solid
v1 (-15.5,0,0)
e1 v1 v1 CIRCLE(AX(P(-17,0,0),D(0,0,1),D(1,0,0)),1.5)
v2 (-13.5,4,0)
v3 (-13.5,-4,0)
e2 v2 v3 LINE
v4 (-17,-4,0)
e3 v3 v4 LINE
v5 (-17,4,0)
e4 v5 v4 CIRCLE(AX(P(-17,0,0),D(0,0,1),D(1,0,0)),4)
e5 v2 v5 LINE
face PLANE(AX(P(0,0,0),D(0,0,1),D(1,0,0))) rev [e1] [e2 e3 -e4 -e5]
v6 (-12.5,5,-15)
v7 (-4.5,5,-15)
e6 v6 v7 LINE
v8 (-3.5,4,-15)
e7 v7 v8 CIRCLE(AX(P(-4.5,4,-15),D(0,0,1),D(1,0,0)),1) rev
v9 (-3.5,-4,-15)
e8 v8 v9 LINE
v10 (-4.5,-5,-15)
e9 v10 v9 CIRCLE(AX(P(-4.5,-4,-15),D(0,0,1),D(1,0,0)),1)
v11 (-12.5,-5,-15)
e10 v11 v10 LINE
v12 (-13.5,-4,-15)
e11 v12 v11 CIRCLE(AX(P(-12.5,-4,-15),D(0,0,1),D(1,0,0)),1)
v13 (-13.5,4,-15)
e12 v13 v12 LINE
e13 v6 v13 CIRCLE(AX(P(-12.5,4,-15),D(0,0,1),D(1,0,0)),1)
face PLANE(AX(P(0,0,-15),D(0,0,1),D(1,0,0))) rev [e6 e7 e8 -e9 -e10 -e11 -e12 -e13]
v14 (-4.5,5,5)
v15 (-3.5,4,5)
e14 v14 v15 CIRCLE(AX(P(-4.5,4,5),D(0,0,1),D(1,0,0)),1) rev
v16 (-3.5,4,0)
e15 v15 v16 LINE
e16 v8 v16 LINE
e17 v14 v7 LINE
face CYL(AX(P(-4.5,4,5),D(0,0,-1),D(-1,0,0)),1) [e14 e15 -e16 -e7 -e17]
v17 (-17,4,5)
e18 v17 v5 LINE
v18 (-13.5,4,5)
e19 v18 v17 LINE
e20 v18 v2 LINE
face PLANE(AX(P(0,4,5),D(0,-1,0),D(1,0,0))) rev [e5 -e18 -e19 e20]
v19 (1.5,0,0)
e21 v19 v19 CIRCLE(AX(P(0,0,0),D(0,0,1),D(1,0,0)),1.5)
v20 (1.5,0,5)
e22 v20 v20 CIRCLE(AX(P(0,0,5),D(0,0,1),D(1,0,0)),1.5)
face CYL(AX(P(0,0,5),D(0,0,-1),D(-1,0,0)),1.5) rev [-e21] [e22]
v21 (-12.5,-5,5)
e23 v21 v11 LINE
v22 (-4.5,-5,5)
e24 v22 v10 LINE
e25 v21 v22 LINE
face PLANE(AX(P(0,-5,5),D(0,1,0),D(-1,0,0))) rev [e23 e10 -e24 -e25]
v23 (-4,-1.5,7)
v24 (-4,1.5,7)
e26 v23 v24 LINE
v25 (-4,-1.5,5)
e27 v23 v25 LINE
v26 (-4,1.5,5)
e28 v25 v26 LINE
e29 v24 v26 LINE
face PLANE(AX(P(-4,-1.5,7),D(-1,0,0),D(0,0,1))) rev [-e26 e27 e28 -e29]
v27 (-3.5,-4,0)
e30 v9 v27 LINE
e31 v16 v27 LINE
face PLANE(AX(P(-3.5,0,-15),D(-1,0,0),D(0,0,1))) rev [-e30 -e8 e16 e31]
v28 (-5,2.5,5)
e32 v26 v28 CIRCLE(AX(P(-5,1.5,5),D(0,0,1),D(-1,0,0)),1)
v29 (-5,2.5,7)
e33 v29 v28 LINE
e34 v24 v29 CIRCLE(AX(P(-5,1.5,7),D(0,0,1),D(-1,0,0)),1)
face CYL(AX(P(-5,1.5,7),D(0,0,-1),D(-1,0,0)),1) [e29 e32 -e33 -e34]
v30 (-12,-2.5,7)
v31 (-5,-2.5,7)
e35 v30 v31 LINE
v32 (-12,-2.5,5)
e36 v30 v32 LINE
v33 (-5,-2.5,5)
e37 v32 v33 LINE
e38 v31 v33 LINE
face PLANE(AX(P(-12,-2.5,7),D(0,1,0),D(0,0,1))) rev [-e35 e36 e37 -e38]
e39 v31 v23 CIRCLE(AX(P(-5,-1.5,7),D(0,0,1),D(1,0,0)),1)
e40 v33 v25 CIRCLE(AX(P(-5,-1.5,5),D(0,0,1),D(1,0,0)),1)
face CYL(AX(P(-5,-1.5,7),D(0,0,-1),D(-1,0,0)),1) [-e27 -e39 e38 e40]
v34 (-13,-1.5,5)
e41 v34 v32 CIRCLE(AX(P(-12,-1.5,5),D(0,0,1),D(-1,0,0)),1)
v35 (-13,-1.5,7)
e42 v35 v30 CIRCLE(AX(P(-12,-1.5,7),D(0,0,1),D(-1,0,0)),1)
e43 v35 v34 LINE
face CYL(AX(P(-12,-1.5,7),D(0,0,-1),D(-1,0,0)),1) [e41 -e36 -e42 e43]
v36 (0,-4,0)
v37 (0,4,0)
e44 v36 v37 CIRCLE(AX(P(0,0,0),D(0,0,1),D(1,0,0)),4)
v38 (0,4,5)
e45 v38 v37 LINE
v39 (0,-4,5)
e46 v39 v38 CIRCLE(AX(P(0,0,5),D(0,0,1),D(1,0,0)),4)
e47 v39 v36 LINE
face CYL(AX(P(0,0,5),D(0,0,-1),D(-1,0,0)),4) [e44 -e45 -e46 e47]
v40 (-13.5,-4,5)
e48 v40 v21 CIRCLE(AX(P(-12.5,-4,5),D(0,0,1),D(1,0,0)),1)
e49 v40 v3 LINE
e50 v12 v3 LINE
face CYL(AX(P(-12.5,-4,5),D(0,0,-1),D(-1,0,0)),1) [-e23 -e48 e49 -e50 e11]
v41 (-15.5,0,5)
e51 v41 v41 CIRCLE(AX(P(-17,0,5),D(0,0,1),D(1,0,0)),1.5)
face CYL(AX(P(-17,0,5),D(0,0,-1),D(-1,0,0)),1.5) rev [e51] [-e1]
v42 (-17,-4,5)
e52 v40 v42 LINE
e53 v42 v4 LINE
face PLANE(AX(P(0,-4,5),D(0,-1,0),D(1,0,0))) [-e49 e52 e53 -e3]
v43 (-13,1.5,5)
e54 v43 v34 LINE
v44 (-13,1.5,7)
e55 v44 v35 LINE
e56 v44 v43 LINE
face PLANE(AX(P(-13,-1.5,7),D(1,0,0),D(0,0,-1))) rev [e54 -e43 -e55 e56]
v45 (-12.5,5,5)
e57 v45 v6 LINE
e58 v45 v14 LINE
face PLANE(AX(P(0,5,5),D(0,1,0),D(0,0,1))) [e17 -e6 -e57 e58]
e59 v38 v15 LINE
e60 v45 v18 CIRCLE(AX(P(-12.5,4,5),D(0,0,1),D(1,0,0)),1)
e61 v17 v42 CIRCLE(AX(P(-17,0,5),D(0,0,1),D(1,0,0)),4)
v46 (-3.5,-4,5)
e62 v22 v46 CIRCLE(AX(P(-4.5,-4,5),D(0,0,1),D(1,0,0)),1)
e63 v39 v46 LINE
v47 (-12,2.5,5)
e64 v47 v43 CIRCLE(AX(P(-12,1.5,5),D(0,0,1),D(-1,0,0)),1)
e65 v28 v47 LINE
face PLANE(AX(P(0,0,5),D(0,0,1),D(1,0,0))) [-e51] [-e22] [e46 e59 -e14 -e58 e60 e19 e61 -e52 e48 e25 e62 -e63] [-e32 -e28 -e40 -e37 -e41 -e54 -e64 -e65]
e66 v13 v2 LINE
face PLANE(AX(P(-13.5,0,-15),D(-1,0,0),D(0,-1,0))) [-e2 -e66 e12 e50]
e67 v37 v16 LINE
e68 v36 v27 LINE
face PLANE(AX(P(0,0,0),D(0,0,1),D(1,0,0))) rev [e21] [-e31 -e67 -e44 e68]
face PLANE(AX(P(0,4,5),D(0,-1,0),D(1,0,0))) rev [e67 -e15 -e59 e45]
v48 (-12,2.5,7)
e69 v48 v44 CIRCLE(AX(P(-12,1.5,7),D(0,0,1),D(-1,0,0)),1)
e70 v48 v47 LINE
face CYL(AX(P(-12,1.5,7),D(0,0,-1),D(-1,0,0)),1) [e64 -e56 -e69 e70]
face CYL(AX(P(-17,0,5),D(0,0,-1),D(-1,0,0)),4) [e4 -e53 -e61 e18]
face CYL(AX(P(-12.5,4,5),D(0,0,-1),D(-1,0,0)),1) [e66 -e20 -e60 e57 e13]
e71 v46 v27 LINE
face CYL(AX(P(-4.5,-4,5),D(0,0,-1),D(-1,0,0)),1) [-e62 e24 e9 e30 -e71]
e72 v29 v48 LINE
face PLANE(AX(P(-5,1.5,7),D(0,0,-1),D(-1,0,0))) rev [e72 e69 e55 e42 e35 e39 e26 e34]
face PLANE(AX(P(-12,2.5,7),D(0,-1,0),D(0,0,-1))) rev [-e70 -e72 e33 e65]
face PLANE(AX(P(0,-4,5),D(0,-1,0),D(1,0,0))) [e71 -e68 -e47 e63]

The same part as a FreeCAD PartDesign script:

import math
import FreeCAD as App
import Part
import Sketcher
from FreeCAD import Vector

doc = App.newDocument("Part")
body = doc.addObject("PartDesign::Body", "Body")

sketch1 = body.newObject("Sketcher::SketchObject", "Sketch")
sketch1.AttachmentSupport = (doc.getObject("XY_Plane"), [""])
sketch1.MapMode = "FlatFace"
sketch1.addGeometry(Part.ArcOfCircle(Part.Circle(Vector(0, 0, 0), Vector(0, 0, 1), 4), math.radians(-90), math.radians(90)), False)
sketch1.addGeometry(Part.LineSegment(Vector(0, 4, 0), Vector(-3.5, 4, 0)), False)
sketch1.addGeometry(Part.ArcOfCircle(Part.Circle(Vector(-4.5, 4, 0), Vector(0, 0, 1), 1), math.radians(0), math.radians(90)), False)
sketch1.addGeometry(Part.LineSegment(Vector(-4.5, 5, 0), Vector(-12.5, 5, 0)), False)
sketch1.addGeometry(Part.ArcOfCircle(Part.Circle(Vector(-12.5, 4, 0), Vector(0, 0, 1), 1), math.radians(90), math.radians(180)), False)
sketch1.addGeometry(Part.LineSegment(Vector(-13.5, 4, 0), Vector(-17, 4, 0)), False)
sketch1.addGeometry(Part.ArcOfCircle(Part.Circle(Vector(-17, 0, 0), Vector(0, 0, 1), 4), math.radians(90), math.radians(270)), False)
sketch1.addGeometry(Part.LineSegment(Vector(-17, -4, 0), Vector(-13.5, -4, 0)), False)
sketch1.addGeometry(Part.ArcOfCircle(Part.Circle(Vector(-12.5, -4, 0), Vector(0, 0, 1), 1), math.radians(-180), math.radians(-90)), False)
sketch1.addGeometry(Part.LineSegment(Vector(-12.5, -5, 0), Vector(-4.5, -5, 0)), False)
sketch1.addGeometry(Part.ArcOfCircle(Part.Circle(Vector(-4.5, -4, 0), Vector(0, 0, 1), 1), math.radians(-90), math.radians(0)), False)
sketch1.addGeometry(Part.LineSegment(Vector(-3.5, -4, 0), Vector(0, -4, 0)), False)
sketch1.addGeometry(Part.Circle(Vector(0, 0, 0), Vector(0, 0, 1), 1.5), False)
sketch1.addGeometry(Part.Circle(Vector(-17, 0, 0), Vector(0, 0, 1), 1.5), False)
sketch1.addConstraint(Sketcher.Constraint("Tangent", 0, 2, 1, 1))
sketch1.addConstraint(Sketcher.Constraint("Coincident", 1, 2, 2, 1))
sketch1.addConstraint(Sketcher.Constraint("Tangent", 2, 2, 3, 1))
sketch1.addConstraint(Sketcher.Constraint("Tangent", 3, 2, 4, 1))
sketch1.addConstraint(Sketcher.Constraint("Coincident", 4, 2, 5, 1))
sketch1.addConstraint(Sketcher.Constraint("Tangent", 5, 2, 6, 1))
sketch1.addConstraint(Sketcher.Constraint("Tangent", 6, 2, 7, 1))
sketch1.addConstraint(Sketcher.Constraint("Coincident", 7, 2, 8, 1))
sketch1.addConstraint(Sketcher.Constraint("Tangent", 8, 2, 9, 1))
sketch1.addConstraint(Sketcher.Constraint("Tangent", 9, 2, 10, 1))
sketch1.addConstraint(Sketcher.Constraint("Coincident", 10, 2, 11, 1))
sketch1.addConstraint(Sketcher.Constraint("Tangent", 11, 2, 0, 1))
sketch1.addConstraint(Sketcher.Constraint("Horizontal", 1))
sketch1.addConstraint(Sketcher.Constraint("Horizontal", 3))
sketch1.addConstraint(Sketcher.Constraint("Horizontal", 5))
sketch1.addConstraint(Sketcher.Constraint("Horizontal", 7))
sketch1.addConstraint(Sketcher.Constraint("Horizontal", 9))
sketch1.addConstraint(Sketcher.Constraint("Horizontal", 11))
sketch1.addConstraint(Sketcher.Constraint("Coincident", 0, 3, -1, 1))
sketch1.addConstraint(Sketcher.Constraint("Coincident", 12, 3, -1, 1))
sketch1.addConstraint(Sketcher.Constraint("Coincident", 13, 3, 6, 3))
sketch1.addConstraint(Sketcher.Constraint("Equal", 2, 4))
sketch1.addConstraint(Sketcher.Constraint("Equal", 0, 6))
sketch1.addConstraint(Sketcher.Constraint("Equal", 4, 8))
sketch1.addConstraint(Sketcher.Constraint("Equal", 8, 10))
sketch1.addConstraint(Sketcher.Constraint("Equal", 12, 13))
sketch1.addConstraint(Sketcher.Constraint("Symmetric", 4, 3, 8, 3, -1))
sketch1.addConstraint(Sketcher.Constraint("PointOnObject", 6, 3, -1))
sketch1.addConstraint(Sketcher.Constraint("Horizontal", 4, 3, 0, 2))
sketch1.addConstraint(Sketcher.Constraint("Vertical", 2, 3, 10, 3))
sketch1.addConstraint(Sketcher.Constraint("Equal", 1, 5))
sketch1.addConstraint(Sketcher.Constraint("Diameter", 12, 3.0))
sketch1.addConstraint(Sketcher.Constraint("Radius", 0, 4.0))
sketch1.addConstraint(Sketcher.Constraint("Radius", 2, 1.0))
sketch1.addConstraint(Sketcher.Constraint("DistanceX", 3, 2, 3, 1, 8.0))
sketch1.addConstraint(Sketcher.Constraint("DistanceX", 1, 2, 1, 1, 3.5))
pad1 = body.newObject("PartDesign::Pad", "Pad")
pad1.Profile = sketch1
pad1.Length = 5

sketch2 = body.newObject("Sketcher::SketchObject", "Sketch001")
sketch2.AttachmentSupport = (doc.getObject("XY_Plane"), [""])
sketch2.MapMode = "FlatFace"
sketch2.AttachmentOffset = App.Placement(Vector(0, 0, 5), App.Rotation())
sketch2.addGeometry(Part.LineSegment(Vector(-12, -2.5, 0), Vector(-5, -2.5, 0)), False)
sketch2.addGeometry(Part.ArcOfCircle(Part.Circle(Vector(-5, -1.5, 0), Vector(0, 0, 1), 1), math.radians(-90), math.radians(0)), False)
sketch2.addGeometry(Part.LineSegment(Vector(-4, -1.5, 0), Vector(-4, 1.5, 0)), False)
sketch2.addGeometry(Part.ArcOfCircle(Part.Circle(Vector(-5, 1.5, 0), Vector(0, 0, 1), 1), math.radians(0), math.radians(90)), False)
sketch2.addGeometry(Part.LineSegment(Vector(-5, 2.5, 0), Vector(-12, 2.5, 0)), False)
sketch2.addGeometry(Part.ArcOfCircle(Part.Circle(Vector(-12, 1.5, 0), Vector(0, 0, 1), 1), math.radians(90), math.radians(180)), False)
sketch2.addGeometry(Part.LineSegment(Vector(-13, 1.5, 0), Vector(-13, -1.5, 0)), False)
sketch2.addGeometry(Part.ArcOfCircle(Part.Circle(Vector(-12, -1.5, 0), Vector(0, 0, 1), 1), math.radians(-180), math.radians(-90)), False)
sketch2.addConstraint(Sketcher.Constraint("Tangent", 0, 2, 1, 1))
sketch2.addConstraint(Sketcher.Constraint("Tangent", 1, 2, 2, 1))
sketch2.addConstraint(Sketcher.Constraint("Tangent", 2, 2, 3, 1))
sketch2.addConstraint(Sketcher.Constraint("Tangent", 3, 2, 4, 1))
sketch2.addConstraint(Sketcher.Constraint("Tangent", 4, 2, 5, 1))
sketch2.addConstraint(Sketcher.Constraint("Tangent", 5, 2, 6, 1))
sketch2.addConstraint(Sketcher.Constraint("Tangent", 6, 2, 7, 1))
sketch2.addConstraint(Sketcher.Constraint("Tangent", 7, 2, 0, 1))
sketch2.addConstraint(Sketcher.Constraint("Horizontal", 0))
sketch2.addConstraint(Sketcher.Constraint("Vertical", 2))
sketch2.addConstraint(Sketcher.Constraint("Horizontal", 4))
sketch2.addConstraint(Sketcher.Constraint("Vertical", 6))
sketch2.addConstraint(Sketcher.Constraint("Equal", 1, 3))
sketch2.addConstraint(Sketcher.Constraint("Equal", 3, 5))
sketch2.addConstraint(Sketcher.Constraint("Equal", 5, 7))
sketch2.addConstraint(Sketcher.Constraint("Radius", 1, 1.0))
sketch2.addConstraint(Sketcher.Constraint("DistanceX", 0, 1, 0, 2, 7.0))
sketch2.addConstraint(Sketcher.Constraint("DistanceY", 2, 1, 2, 2, 3.0))
sketch2.addConstraint(Sketcher.Constraint("DistanceX", 1, 3, -1, 1, 5.0))
sketch2.addConstraint(Sketcher.Constraint("DistanceY", 1, 3, -1, 1, 1.5))
pad2 = body.newObject("PartDesign::Pad", "Pad001")
pad2.Profile = sketch2
pad2.Length = 2

sketch3 = body.newObject("Sketcher::SketchObject", "Sketch002")
sketch3.AttachmentSupport = (doc.getObject("XY_Plane"), [""])
sketch3.MapMode = "FlatFace"
sketch3.AttachmentOffset = App.Placement(Vector(0, 0, -15), App.Rotation())
sketch3.addGeometry(Part.ArcOfCircle(Part.Circle(Vector(-4.5, 4, 0), Vector(0, 0, 1), 1), math.radians(0), math.radians(90)), False)
sketch3.addGeometry(Part.LineSegment(Vector(-4.5, 5, 0), Vector(-12.5, 5, 0)), False)
sketch3.addGeometry(Part.ArcOfCircle(Part.Circle(Vector(-12.5, 4, 0), Vector(0, 0, 1), 1), math.radians(90), math.radians(180)), False)
sketch3.addGeometry(Part.LineSegment(Vector(-13.5, 4, 0), Vector(-13.5, -4, 0)), False)
sketch3.addGeometry(Part.ArcOfCircle(Part.Circle(Vector(-12.5, -4, 0), Vector(0, 0, 1), 1), math.radians(-180), math.radians(-90)), False)
sketch3.addGeometry(Part.LineSegment(Vector(-12.5, -5, 0), Vector(-4.5, -5, 0)), False)
sketch3.addGeometry(Part.ArcOfCircle(Part.Circle(Vector(-4.5, -4, 0), Vector(0, 0, 1), 1), math.radians(-90), math.radians(0)), False)
sketch3.addGeometry(Part.LineSegment(Vector(-3.5, -4, 0), Vector(-3.5, 4, 0)), False)
sketch3.addConstraint(Sketcher.Constraint("Tangent", 0, 2, 1, 1))
sketch3.addConstraint(Sketcher.Constraint("Tangent", 1, 2, 2, 1))
sketch3.addConstraint(Sketcher.Constraint("Tangent", 2, 2, 3, 1))
sketch3.addConstraint(Sketcher.Constraint("Tangent", 3, 2, 4, 1))
sketch3.addConstraint(Sketcher.Constraint("Tangent", 4, 2, 5, 1))
sketch3.addConstraint(Sketcher.Constraint("Tangent", 5, 2, 6, 1))
sketch3.addConstraint(Sketcher.Constraint("Tangent", 6, 2, 7, 1))
sketch3.addConstraint(Sketcher.Constraint("Tangent", 7, 2, 0, 1))
sketch3.addConstraint(Sketcher.Constraint("Horizontal", 1))
sketch3.addConstraint(Sketcher.Constraint("Vertical", 3))
sketch3.addConstraint(Sketcher.Constraint("Horizontal", 5))
sketch3.addConstraint(Sketcher.Constraint("Vertical", 7))
sketch3.addConstraint(Sketcher.Constraint("Equal", 0, 2))
sketch3.addConstraint(Sketcher.Constraint("Equal", 2, 4))
sketch3.addConstraint(Sketcher.Constraint("Equal", 4, 6))
sketch3.addConstraint(Sketcher.Constraint("Equal", 5, 3))
sketch3.addConstraint(Sketcher.Constraint("Radius", 0, 1.0))
sketch3.addConstraint(Sketcher.Constraint("DistanceX", 1, 2, 1, 1, 8.0))
sketch3.addConstraint(Sketcher.Constraint("DistanceY", -1, 1, 0, 3, 4.0))
sketch3.addConstraint(Sketcher.Constraint("DistanceX", 0, 3, -1, 1, 4.5))
pad3 = body.newObject("PartDesign::Pad", "Pad002")
pad3.Profile = sketch3
pad3.Length = 15

doc.recompute()
